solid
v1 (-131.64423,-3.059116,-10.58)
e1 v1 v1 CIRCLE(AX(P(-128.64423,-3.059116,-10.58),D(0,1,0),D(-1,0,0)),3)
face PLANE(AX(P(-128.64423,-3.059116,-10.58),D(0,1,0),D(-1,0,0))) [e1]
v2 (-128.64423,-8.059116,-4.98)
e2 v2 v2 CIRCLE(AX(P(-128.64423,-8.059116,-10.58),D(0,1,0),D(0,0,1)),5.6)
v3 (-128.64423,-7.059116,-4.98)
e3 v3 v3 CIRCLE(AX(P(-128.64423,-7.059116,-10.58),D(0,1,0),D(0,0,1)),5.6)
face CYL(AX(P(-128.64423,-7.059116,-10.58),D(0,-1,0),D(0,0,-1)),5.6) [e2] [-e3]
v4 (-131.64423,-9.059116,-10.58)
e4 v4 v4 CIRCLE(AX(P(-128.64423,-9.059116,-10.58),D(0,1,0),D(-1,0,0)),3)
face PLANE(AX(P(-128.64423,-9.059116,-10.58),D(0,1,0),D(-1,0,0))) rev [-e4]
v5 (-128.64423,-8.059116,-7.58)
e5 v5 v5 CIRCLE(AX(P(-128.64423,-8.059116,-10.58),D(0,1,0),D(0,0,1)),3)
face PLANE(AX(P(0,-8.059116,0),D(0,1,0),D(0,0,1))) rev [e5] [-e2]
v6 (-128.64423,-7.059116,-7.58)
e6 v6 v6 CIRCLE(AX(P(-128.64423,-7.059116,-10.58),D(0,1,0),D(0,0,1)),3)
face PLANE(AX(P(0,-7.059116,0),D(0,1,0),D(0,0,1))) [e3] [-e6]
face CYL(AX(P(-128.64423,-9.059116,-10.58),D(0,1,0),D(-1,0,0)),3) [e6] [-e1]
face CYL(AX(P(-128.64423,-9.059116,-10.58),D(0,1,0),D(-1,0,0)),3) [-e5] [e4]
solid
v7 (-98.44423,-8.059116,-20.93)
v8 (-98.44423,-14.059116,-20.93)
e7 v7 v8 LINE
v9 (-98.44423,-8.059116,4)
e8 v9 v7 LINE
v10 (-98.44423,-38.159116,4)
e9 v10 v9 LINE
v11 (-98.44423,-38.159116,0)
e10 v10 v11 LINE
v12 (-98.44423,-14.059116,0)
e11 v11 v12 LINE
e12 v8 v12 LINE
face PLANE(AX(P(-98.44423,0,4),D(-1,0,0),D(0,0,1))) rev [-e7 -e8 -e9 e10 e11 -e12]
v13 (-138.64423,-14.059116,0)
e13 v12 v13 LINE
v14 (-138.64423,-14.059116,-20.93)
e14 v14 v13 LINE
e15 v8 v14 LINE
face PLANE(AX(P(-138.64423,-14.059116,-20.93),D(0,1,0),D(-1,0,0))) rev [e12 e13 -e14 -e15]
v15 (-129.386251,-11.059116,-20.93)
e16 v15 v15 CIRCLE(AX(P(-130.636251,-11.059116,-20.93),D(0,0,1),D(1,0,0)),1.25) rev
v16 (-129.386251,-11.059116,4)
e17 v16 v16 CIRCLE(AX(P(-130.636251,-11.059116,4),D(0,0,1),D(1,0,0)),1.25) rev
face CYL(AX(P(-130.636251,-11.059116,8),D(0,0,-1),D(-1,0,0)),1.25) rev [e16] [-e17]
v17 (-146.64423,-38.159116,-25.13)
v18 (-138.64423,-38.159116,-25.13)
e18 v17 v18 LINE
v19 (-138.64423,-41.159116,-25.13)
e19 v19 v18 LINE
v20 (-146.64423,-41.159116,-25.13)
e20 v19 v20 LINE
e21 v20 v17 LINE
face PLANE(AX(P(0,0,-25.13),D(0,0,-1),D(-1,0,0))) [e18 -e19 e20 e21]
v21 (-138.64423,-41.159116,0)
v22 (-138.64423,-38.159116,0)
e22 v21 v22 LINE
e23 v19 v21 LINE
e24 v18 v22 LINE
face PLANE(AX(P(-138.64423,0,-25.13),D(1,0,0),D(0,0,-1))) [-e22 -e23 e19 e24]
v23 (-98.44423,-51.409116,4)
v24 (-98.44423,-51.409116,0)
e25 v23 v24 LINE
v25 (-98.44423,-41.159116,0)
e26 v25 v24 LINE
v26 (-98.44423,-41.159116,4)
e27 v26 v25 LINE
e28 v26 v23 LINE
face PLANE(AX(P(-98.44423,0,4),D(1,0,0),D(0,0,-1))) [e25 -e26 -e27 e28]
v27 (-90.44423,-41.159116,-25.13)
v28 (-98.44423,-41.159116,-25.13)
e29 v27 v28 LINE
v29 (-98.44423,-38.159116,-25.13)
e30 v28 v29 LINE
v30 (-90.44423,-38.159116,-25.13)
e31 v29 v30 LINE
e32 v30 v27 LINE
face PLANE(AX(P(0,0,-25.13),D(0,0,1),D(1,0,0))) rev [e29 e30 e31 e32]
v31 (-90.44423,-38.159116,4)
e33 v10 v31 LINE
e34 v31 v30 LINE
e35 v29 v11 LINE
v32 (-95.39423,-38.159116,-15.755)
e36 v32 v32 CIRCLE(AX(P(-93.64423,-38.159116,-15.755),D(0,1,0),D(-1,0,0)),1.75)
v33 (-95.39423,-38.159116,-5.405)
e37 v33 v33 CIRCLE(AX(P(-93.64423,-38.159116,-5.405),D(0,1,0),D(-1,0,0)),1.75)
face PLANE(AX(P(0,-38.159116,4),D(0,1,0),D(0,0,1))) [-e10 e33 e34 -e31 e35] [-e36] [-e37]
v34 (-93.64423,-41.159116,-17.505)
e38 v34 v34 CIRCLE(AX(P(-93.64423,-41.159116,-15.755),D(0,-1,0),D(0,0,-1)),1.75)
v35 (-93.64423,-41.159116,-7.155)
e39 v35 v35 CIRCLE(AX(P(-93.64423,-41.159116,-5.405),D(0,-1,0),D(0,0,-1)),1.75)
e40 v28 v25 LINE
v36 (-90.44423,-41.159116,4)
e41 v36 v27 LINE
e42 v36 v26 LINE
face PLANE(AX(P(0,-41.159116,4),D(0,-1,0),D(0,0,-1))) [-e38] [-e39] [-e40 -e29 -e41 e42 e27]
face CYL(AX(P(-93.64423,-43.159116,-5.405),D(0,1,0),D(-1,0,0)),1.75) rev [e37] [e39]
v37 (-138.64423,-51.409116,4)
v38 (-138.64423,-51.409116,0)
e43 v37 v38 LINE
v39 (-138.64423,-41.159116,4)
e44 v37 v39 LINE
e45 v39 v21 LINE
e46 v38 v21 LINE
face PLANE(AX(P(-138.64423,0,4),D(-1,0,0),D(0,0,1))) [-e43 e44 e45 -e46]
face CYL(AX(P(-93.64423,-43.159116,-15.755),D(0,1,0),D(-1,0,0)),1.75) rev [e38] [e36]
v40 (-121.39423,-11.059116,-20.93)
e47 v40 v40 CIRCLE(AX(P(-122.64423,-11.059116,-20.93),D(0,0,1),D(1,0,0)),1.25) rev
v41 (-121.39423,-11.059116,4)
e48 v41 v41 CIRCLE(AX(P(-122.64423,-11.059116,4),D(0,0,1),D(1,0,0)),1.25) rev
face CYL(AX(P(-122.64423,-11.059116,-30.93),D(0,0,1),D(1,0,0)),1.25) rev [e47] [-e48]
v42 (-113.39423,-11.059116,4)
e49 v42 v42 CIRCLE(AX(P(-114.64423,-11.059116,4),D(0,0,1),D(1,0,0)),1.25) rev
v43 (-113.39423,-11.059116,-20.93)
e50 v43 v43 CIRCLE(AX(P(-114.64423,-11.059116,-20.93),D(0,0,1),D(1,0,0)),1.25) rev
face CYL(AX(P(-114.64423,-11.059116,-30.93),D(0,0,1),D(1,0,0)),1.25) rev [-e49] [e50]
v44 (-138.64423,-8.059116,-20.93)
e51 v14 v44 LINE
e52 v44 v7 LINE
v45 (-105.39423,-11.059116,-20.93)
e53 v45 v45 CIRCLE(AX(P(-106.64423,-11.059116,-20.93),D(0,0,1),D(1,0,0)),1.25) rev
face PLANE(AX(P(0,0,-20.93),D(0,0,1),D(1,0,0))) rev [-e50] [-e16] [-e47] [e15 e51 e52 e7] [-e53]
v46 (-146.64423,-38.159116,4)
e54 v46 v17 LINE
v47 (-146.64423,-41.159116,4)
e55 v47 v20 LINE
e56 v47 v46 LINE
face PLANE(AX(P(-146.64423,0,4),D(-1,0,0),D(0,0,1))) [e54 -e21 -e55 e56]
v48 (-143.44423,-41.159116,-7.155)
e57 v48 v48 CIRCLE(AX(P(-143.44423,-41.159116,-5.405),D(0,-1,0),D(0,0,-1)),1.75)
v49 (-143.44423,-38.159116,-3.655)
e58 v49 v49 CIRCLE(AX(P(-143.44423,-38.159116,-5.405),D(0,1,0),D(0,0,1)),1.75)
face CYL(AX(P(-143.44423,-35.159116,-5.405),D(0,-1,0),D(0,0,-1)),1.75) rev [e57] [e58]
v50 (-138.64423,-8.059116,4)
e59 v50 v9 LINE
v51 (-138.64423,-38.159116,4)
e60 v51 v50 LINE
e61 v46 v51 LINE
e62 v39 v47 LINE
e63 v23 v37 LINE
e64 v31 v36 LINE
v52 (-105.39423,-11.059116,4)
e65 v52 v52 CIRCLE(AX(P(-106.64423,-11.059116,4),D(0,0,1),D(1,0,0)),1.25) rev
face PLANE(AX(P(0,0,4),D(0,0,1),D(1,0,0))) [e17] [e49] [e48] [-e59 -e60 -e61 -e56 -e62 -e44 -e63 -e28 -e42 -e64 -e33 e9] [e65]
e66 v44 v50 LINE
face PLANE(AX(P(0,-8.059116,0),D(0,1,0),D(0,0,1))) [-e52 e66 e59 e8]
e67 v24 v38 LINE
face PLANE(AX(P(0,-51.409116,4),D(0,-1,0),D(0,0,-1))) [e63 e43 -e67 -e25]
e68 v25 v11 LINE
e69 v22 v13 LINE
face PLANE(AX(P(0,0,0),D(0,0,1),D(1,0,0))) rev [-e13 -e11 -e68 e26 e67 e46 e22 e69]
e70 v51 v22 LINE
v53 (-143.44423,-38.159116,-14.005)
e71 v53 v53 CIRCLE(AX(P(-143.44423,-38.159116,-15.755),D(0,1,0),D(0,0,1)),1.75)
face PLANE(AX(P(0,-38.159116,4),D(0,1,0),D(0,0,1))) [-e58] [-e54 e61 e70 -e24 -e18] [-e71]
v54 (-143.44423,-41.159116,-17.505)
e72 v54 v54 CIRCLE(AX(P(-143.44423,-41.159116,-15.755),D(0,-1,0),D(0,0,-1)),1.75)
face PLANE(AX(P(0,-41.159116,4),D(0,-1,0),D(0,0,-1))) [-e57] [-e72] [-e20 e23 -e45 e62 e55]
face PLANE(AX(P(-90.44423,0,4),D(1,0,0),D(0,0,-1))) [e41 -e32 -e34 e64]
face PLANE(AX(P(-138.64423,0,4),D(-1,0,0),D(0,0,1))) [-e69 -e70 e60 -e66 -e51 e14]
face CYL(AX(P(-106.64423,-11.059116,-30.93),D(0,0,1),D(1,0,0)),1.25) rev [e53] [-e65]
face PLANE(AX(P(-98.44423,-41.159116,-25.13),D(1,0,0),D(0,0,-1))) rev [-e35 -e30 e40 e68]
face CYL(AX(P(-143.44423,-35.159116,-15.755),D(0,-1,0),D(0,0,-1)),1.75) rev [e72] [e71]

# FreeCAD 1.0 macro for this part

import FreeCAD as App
import Part
import Sketcher
from FreeCAD import Vector


def add_polygon(sketch, points):
    """Adds a closed chain of lines whose ends are joined by coincident constraints."""
    first, n = sketch.GeometryCount, len(points)
    for a, b in zip(points, points[1:] + points[:1]):
        sketch.addGeometry(Part.LineSegment(App.Vector(*a, 0), App.Vector(*b, 0)), False)
    for i in range(n):
        sketch.addConstraint(Sketcher.Constraint("Coincident", first + i, 2, first + (i + 1) % n, 1))

doc = App.newDocument("Part")
body = doc.addObject("PartDesign::Body", "Body")

sketch1 = body.newObject("Sketcher::SketchObject", "Sketch")
sketch1.AttachmentSupport = (doc.getObject("XY_Plane"), [""])
sketch1.MapMode = "FlatFace"
add_polygon(sketch1, [(-138.6, -41.2), (-138.6, -51.4), (-98.4, -51.4), (-98.4, -41.2), (-90.4, -41.2), (-90.4, -38.2), (-98.4, -38.2), (-98.4, -14.1), (-138.6, -14.1), (-138.6, -38.2), (-146.6, -38.2), (-146.6, -41.2)])
sketch1.addConstraint([
    Sketcher.Constraint("Vertical", 0),
    Sketcher.Constraint("Horizontal", 1),
    Sketcher.Constraint("Vertical", 2),
    Sketcher.Constraint("Horizontal", 3),
    Sketcher.Constraint("Vertical", 4),
    Sketcher.Constraint("Horizontal", 5),
    Sketcher.Constraint("Vertical", 6),
    Sketcher.Constraint("Horizontal", 7),
    Sketcher.Constraint("Vertical", 8),
    Sketcher.Constraint("Horizontal", 9),
    Sketcher.Constraint("Vertical", 10),
    Sketcher.Constraint("Horizontal", 11),
    Sketcher.Constraint("Horizontal", 5, 2, 8, 2),
    Sketcher.Constraint("Horizontal", 3, 2, 10, 2),
    Sketcher.Constraint("Vertical", 2, 2, 5, 2),
    Sketcher.Constraint("Vertical", 0, 2, 7, 2),
    Sketcher.Constraint("Equal", 5, 9),
    Sketcher.Constraint("DistanceX", 3, 1, 3, 2, 8.0),
    Sketcher.Constraint("DistanceY", 4, 1, 4, 2, 3.0),
    Sketcher.Constraint("DistanceX", 1, 1, 1, 2, 40.2),
    Sketcher.Constraint("DistanceY", 6, 1, 6, 2, 24.1),
    Sketcher.Constraint("DistanceY", 0, 2, 0, 1, 10.25),
    Sketcher.Constraint("DistanceX", 0, 2, -1, 1, 138.64423),
    Sketcher.Constraint("DistanceY", 0, 2, -1, 1, 51.409116),
])
pad1 = body.newObject("PartDesign::Pad", "Pad")
pad1.Profile = sketch1
pad1.Length = 4

sketch2 = body.newObject("Sketcher::SketchObject", "Sketch001")
sketch2.AttachmentSupport = (doc.getObject("XY_Plane"), [""])
sketch2.MapMode = "FlatFace"
add_polygon(sketch2, [(-138.6, -38.2), (-138.6, -41.2), (-146.6, -41.2), (-146.6, -38.2)])
sketch2.addConstraint([
    Sketcher.Constraint("Vertical", 0),
    Sketcher.Constraint("Horizontal", 1),
    Sketcher.Constraint("Vertical", 2),
    Sketcher.Constraint("Horizontal", 3),
    Sketcher.Constraint("DistanceX", 1, 2, 1, 1, 8.0),
    Sketcher.Constraint("DistanceY", 0, 2, 0, 1, 3.0),
    Sketcher.Constraint("DistanceX", 0, 2, -1, 1, 138.64423),
    Sketcher.Constraint("DistanceY", 0, 2, -1, 1, 41.159116),
])
pad2 = body.newObject("PartDesign::Pad", "Pad001")
pad2.Profile = sketch2
pad2.Length = 25.13
pad2.Reversed = True

sketch3 = body.newObject("Sketcher::SketchObject", "Sketch002")
sketch3.AttachmentSupport = (doc.getObject("XY_Plane"), [""])
sketch3.MapMode = "FlatFace"
add_polygon(sketch3, [(-90.4, -38.2), (-90.4, -41.2), (-98.4, -41.2), (-98.4, -38.2)])
sketch3.addConstraint([
    Sketcher.Constraint("Vertical", 0),
    Sketcher.Constraint("Horizontal", 1),
    Sketcher.Constraint("Vertical", 2),
    Sketcher.Constraint("Horizontal", 3),
    Sketcher.Constraint("DistanceX", 1, 2, 1, 1, 8.0),
    Sketcher.Constraint("DistanceY", 0, 2, 0, 1, 3.0),
    Sketcher.Constraint("DistanceX", 0, 2, -1, 1, 90.44423),
    Sketcher.Constraint("DistanceY", 0, 2, -1, 1, 41.159116),
])
pad3 = body.newObject("PartDesign::Pad", "Pad002")
pad3.Profile = sketch3
pad3.Length = 25.13
pad3.Reversed = True

sketch4 = body.newObject("Sketcher::SketchObject", "Sketch003")
sketch4.AttachmentSupport = (doc.getObject("XZ_Plane"), [""])
sketch4.MapMode = "FlatFace"
sketch4.AttachmentOffset = App.Placement(Vector(0, 0, 38.159116), App.Rotation())
sketch4.addGeometry([
    Part.Circle(Vector(-93.6, -5.4, 0), Vector(0, 0, 1), 1.8),
    Part.Circle(Vector(-93.6, -15.8, 0), Vector(0, 0, 1), 1.8),
], False)
sketch4.addConstraint([
    Sketcher.Constraint("Equal", 0, 1),
    Sketcher.Constraint("Vertical", 0, 3, 1, 3),
    Sketcher.Constraint("Diameter", 0, 3.5),
    Sketcher.Constraint("DistanceY", 1, 3, 0, 3, 10.35),
    Sketcher.Constraint("DistanceY", 0, 3, -1, 1, 5.405),
    Sketcher.Constraint("DistanceX", 0, 3, -1, 1, 93.64423),
])
pocket1 = body.newObject("PartDesign::Pocket", "Pocket")
pocket1.Profile = sketch4
pocket1.Length = 5
pocket1.Reversed = True

sketch5 = body.newObject("Sketcher::SketchObject", "Sketch004")
sketch5.AttachmentSupport = (doc.getObject("XZ_Plane"), [""])
sketch5.MapMode = "FlatFace"
sketch5.AttachmentOffset = App.Placement(Vector(0, 0, 41.159116), App.Rotation())
sketch5.addGeometry([
    Part.Circle(Vector(-143.4, -15.8, 0), Vector(0, 0, 1), 1.8),
    Part.Circle(Vector(-143.4, -5.4, 0), Vector(0, 0, 1), 1.8),
], False)
sketch5.addConstraint([
    Sketcher.Constraint("Equal", 0, 1),
    Sketcher.Constraint("Vertical", 0, 3, 1, 3),
    Sketcher.Constraint("Diameter", 0, 3.5),
    Sketcher.Constraint("DistanceY", 0, 3, 1, 3, 10.35),
    Sketcher.Constraint("DistanceY", 0, 3, -1, 1, 15.755),
    Sketcher.Constraint("DistanceX", 0, 3, -1, 1, 143.44423),
])
pocket2 = body.newObject("PartDesign::Pocket", "Pocket001")
pocket2.Profile = sketch5
pocket2.Length = 6
body2 = doc.addObject("PartDesign::Body", "Body001")

sketch6 = body2.newObject("Sketcher::SketchObject", "Sketch005")
sketch6.AttachmentSupport = (doc.getObject("XY_Plane001"), [""])
sketch6.MapMode = "FlatFace"
add_polygon(sketch6, [(-98, -8), (-98, -14), (-139, -14), (-139, -8)])
sketch6.addConstraint([
    Sketcher.Constraint("Vertical", 0),
    Sketcher.Constraint("Horizontal", 1),
    Sketcher.Constraint("Vertical", 2),
    Sketcher.Constraint("Horizontal", 3),
    Sketcher.Constraint("DistanceY", 0, 2, 0, 1, 6.0),
    Sketcher.Constraint("DistanceX", 1, 2, 1, 1, 40.2),
    Sketcher.Constraint("DistanceX", 0, 2, -1, 1, 98.44423),
    Sketcher.Constraint("DistanceY", 0, 2, -1, 1, 14.059116),
])
pad4 = body2.newObject("PartDesign::Pad", "Pad003")
pad4.Profile = sketch6
pad4.Length = 20.93
pad4.Reversed = True

sketch7 = body2.newObject("Sketcher::SketchObject", "Sketch006")
sketch7.AttachmentSupport = (doc.getObject("XZ_Plane001"), [""])
sketch7.MapMode = "FlatFace"
sketch7.AttachmentOffset = App.Placement(Vector(0, 0, 14.059116), App.Rotation())
sketch7.addGeometry(Part.Circle(Vector(-128.6, -10.1, 0), Vector(0, 0, 1), 3.5), False)
sketch7.addConstraint([
    Sketcher.Constraint("Diameter", 0, 7.0),
    Sketcher.Constraint("DistanceX", 0, 3, -1, 1, 128.562891),
    Sketcher.Constraint("DistanceY", 0, 3, -1, 1, 10.14506),
])
pad5 = body2.newObject("PartDesign::Pad", "Pad004")
pad5.Profile = sketch7
pad5.Length = 5.05
pad5.Reversed = True

sketch8 = body2.newObject("Sketcher::SketchObject", "Sketch007")
sketch8.AttachmentSupport = (doc.getObject("XY_Plane001"), [""])
sketch8.MapMode = "FlatFace"
sketch8.AttachmentOffset = App.Placement(Vector(0, 0, -20.93), App.Rotation())
sketch8.addGeometry([
    Part.Circle(Vector(-122.6, -11.1, 0), Vector(0, 0, 1), 1.2),
    Part.Circle(Vector(-114.6, -11.1, 0), Vector(0, 0, 1), 1.2),
    Part.Circle(Vector(-106.6, -11.1, 0), Vector(0, 0, 1), 1.2),
], False)
sketch8.addConstraint([
    Sketcher.Constraint("Equal", 0, 1),
    Sketcher.Constraint("Equal", 1, 2),
    Sketcher.Constraint("Horizontal", 0, 3, 1, 3),
    Sketcher.Constraint("Horizontal", 1, 3, 2, 3),
    Sketcher.Constraint("Diameter", 0, 2.5),
    Sketcher.Constraint("DistanceX", 0, 3, 1, 3, 8.0),
    Sketcher.Constraint("DistanceX", 1, 3, 2, 3, 8.0),
    Sketcher.Constraint("DistanceX", 0, 3, -1, 1, 122.64423),
    Sketcher.Constraint("DistanceY", 0, 3, -1, 1, 11.059117),
])
pocket3 = body2.newObject("PartDesign::Pocket", "Pocket002")
pocket3.Profile = sketch8
pocket3.Type = "ThroughAll"
pocket3.Midplane = True
body3 = doc.addObject("PartDesign::Body", "Body002")

sketch9 = body3.newObject("Sketcher::SketchObject", "Sketch008")
sketch9.AttachmentSupport = (doc.getObject("XZ_Plane002"), [""])
sketch9.MapMode = "FlatFace"
sketch9.AttachmentOffset = App.Placement(Vector(0, 0, 8.059116), App.Rotation())
sketch9.addGeometry(Part.Circle(Vector(-129, -11, 0), Vector(0, 0, 1), 6), False)
sketch9.addConstraint([
    Sketcher.Constraint("Diameter", 0, 11.2),
    Sketcher.Constraint("DistanceY", 0, 3, -1, 1, 10.58),
    Sketcher.Constraint("DistanceX", 0, 3, -1, 1, 128.64423),
])
pad6 = body3.newObject("PartDesign::Pad", "Pad005")
pad6.Profile = sketch9
pad6.Length = 1
pad6.Reversed = True

sketch10 = body3.newObject("Sketcher::SketchObject", "Sketch009")
sketch10.AttachmentSupport = (doc.getObject("XZ_Plane002"), [""])
sketch10.MapMode = "FlatFace"
sketch10.AttachmentOffset = App.Placement(Vector(0, 0, 7.059116), App.Rotation())
sketch10.addGeometry(Part.Circle(Vector(-128.6, -10.6, 0), Vector(0, 0, 1), 3), False)
sketch10.addConstraint([
    Sketcher.Constraint("Diameter", 0, 6.0),
    Sketcher.Constraint("DistanceY", 0, 3, -1, 1, 10.58),
    Sketcher.Constraint("DistanceX", 0, 3, -1, 1, 128.64423),
])
pad7 = body3.newObject("PartDesign::Pad", "Pad006")
pad7.Profile = sketch10
pad7.Type = "TwoLengths"
pad7.Length = 4
pad7.Length2 = 2
pad7.Reversed = True
body.AllowCompound = True
doc.recompute()

boolean = body.newObject("PartDesign::Boolean", "Boolean")
boolean.Type = "Fuse"
boolean.addObjects([body2])

sketch11 = body.newObject("Sketcher::SketchObject", "Sketch010")
sketch11.AttachmentSupport = (doc.getObject("XZ_Plane"), [""])
sketch11.MapMode = "FlatFace"
sketch11.AttachmentOffset = App.Placement(Vector(0, 0, 14.059116), App.Rotation())
add_polygon(sketch11, [(-138.6, 0), (-138.6, 4), (-98.4, 4), (-98.4, 0)])
sketch11.addConstraint([
    Sketcher.Constraint("Vertical", 0),
    Sketcher.Constraint("Horizontal", 1),
    Sketcher.Constraint("Vertical", 2),
    Sketcher.Constraint("Horizontal", 3),
    Sketcher.Constraint("PointOnObject", 2, 2, -1),
    Sketcher.Constraint("DistanceY", 0, 1, 0, 2, 4.0),
    Sketcher.Constraint("DistanceX", 1, 1, 1, 2, 40.2),
    Sketcher.Constraint("DistanceX", 0, 2, -1, 1, 138.64423),
])
pad8 = body.newObject("PartDesign::Pad", "Pad007")
pad8.Profile = sketch11
pad8.Length = 6
pad8.Reversed = True

sketch12 = body.newObject("Sketcher::SketchObject", "Sketch011")
sketch12.AttachmentSupport = (doc.getObject("XY_Plane"), [""])
sketch12.MapMode = "FlatFace"
sketch12.AttachmentOffset = App.Placement(Vector(0, 0, 4), App.Rotation())
sketch12.addGeometry([
    Part.Circle(Vector(-122.6, -11.1, 0), Vector(0, 0, 1), 1.2),
    Part.Circle(Vector(-114.6, -11.1, 0), Vector(0, 0, 1), 1.2),
    Part.Circle(Vector(-130.6, -11.1, 0), Vector(0, 0, 1), 1.2),
    Part.Circle(Vector(-106.6, -11.1, 0), Vector(0, 0, 1), 1.2),
], False)
sketch12.addConstraint([
    Sketcher.Constraint("Equal", 0, 1),
    Sketcher.Constraint("Equal", 1, 2),
    Sketcher.Constraint("Equal", 2, 3),
    Sketcher.Constraint("Horizontal", 0, 3, 1, 3),
    Sketcher.Constraint("Horizontal", 1, 3, 2, 3),
    Sketcher.Constraint("Horizontal", 2, 3, 3, 3),
    Sketcher.Constraint("Diameter", 0, 2.5),
    Sketcher.Constraint("DistanceX", 0, 3, 1, 3, 8.0),
    Sketcher.Constraint("DistanceX", 1, 3, 3, 3, 8.0),
    Sketcher.Constraint("DistanceX", 0, 3, -1, 1, 122.64423),
    Sketcher.Constraint("DistanceX", 2, 3, -1, 1, 130.636251),
    Sketcher.Constraint("DistanceY", 0, 3, -1, 1, 11.059116),
])
pocket4 = body.newObject("PartDesign::Pocket", "Pocket003")
pocket4.Profile = sketch12
pocket4.Type = "ThroughAll"
pocket4.Midplane = True

doc.recompute()
